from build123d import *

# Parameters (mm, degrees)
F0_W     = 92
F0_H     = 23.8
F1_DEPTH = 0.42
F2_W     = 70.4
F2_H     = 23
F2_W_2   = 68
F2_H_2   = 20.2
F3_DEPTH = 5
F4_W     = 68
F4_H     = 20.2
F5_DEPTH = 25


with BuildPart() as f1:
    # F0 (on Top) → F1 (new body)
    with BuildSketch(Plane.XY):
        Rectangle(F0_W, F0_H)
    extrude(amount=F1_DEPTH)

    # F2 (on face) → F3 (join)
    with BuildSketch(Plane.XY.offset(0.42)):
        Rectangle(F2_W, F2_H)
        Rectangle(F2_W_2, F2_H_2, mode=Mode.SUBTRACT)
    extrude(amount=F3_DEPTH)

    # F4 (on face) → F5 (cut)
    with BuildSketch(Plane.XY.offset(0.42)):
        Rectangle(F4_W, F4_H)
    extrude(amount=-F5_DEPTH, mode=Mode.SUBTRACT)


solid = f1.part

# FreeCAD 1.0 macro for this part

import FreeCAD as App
import Part
import Sketcher


def add_polygon(sketch, points):
    """Adds a closed chain of lines whose ends are joined by coincident constraints."""
    first, n = sketch.GeometryCount, len(points)
    for a, b in zip(points, points[1:] + points[:1]):
        sketch.addGeometry(Part.LineSegment(App.Vector(*a, 0), App.Vector(*b, 0)), False)
    for i in range(n):
        sketch.addConstraint(Sketcher.Constraint("Coincident", first + i, 2, first + (i + 1) % n, 1))

doc = App.newDocument("Part")
params = doc.addObject("Spreadsheet::Sheet", "Params")
for row, (alias, value) in enumerate([
    ("sketch1_width", "92 mm"),
    ("sketch1_height", "23.8 mm"),
    ("pad1_length", "0.42 mm"),
    ("sketch2_width", "68 mm"),
    ("sketch2_height", "23 mm"),
    ("sketch2_width2", "70.4 mm"),
    ("sketch2_height2", "20.2 mm"),
    ("pad2_length", "5 mm"),
    ("sketch3_width", "68 mm"),
    ("sketch3_height", "20.2 mm"),
    ("pocket1_length", "25 mm"),
], start=1):
    params.set(f"A{row}", alias)
    params.set(f"B{row}", "=" + value)
    params.setAlias(f"B{row}", alias)

body = doc.addObject("PartDesign::Body", "Body")

sketch1 = body.newObject("Sketcher::SketchObject", "Sketch")
sketch1.AttachmentSupport = (doc.getObject("XY_Plane"), [""])
sketch1.MapMode = "FlatFace"
add_polygon(sketch1, [(-46, 12), (-46, -12), (46, -12), (46, 12)])
sketch1.addConstraint([
    Sketcher.Constraint("Vertical", 0),
    Sketcher.Constraint("Horizontal", 1),
    Sketcher.Constraint("Vertical", 2),
    Sketcher.Constraint("Horizontal", 3),
    Sketcher.Constraint("Symmetric", 0, 2, 2, 2, -1, 1),
    Sketcher.Constraint("DistanceX", 1, 1, 1, 2, 92.0),
    Sketcher.Constraint("DistanceY", 0, 2, 0, 1, 23.8),
])
sketch1.setExpression("Constraints[9]", "Params.sketch1_width")
sketch1.setExpression("Constraints[10]", "Params.sketch1_height")
pad1 = body.newObject("PartDesign::Pad", "Pad")
pad1.Profile = sketch1
pad1.setExpression("Length", "Params.pad1_length")

sketch2 = body.newObject("Sketcher::SketchObject", "Sketch001")
sketch2.AttachmentSupport = (doc.getObject("XY_Plane"), [""])
sketch2.MapMode = "FlatFace"
sketch2.AttachmentOffset = App.Placement(App.Vector(0, 0, 0.42), App.Rotation())
add_polygon(sketch2, [(-35, 12), (-35, -12), (35, -12), (35, 12)])
add_polygon(sketch2, [(34, -10), (-34, -10), (-34, 10), (34, 10)])
sketch2.addConstraint([
    Sketcher.Constraint("Vertical", 0),
    Sketcher.Constraint("Horizontal", 1),
    Sketcher.Constraint("Vertical", 2),
    Sketcher.Constraint("Horizontal", 3),
    Sketcher.Constraint("Horizontal", 4),
    Sketcher.Constraint("Vertical", 5),
    Sketcher.Constraint("Horizontal", 6),
    Sketcher.Constraint("Vertical", 7),
    Sketcher.Constraint("Symmetric", 0, 2, 2, 2, -1, 1),
    Sketcher.Constraint("Symmetric", 4, 2, 6, 2, -1, 1),
    Sketcher.Constraint("DistanceX", 4, 2, 4, 1, 68.0),
    Sketcher.Constraint("DistanceY", 0, 2, 0, 1, 23.0),
    Sketcher.Constraint("DistanceX", 1, 1, 1, 2, 70.4),
    Sketcher.Constraint("DistanceY", 5, 1, 5, 2, 20.2),
])
sketch2.setExpression("Constraints[18]", "Params.sketch2_width")
sketch2.setExpression("Constraints[19]", "Params.sketch2_height")
sketch2.setExpression("Constraints[20]", "Params.sketch2_width2")
sketch2.setExpression("Constraints[21]", "Params.sketch2_height2")
pad2 = body.newObject("PartDesign::Pad", "Pad001")
pad2.Profile = sketch2
pad2.setExpression("Length", "Params.pad2_length")

sketch3 = body.newObject("Sketcher::SketchObject", "Sketch002")
sketch3.AttachmentSupport = (doc.getObject("XY_Plane"), [""])
sketch3.MapMode = "FlatFace"
sketch3.AttachmentOffset = App.Placement(App.Vector(0, 0, 0.42), App.Rotation())
add_polygon(sketch3, [(-34, 10), (-34, -10), (34, -10), (34, 10)])
sketch3.addConstraint([
    Sketcher.Constraint("Vertical", 0),
    Sketcher.Constraint("Horizontal", 1),
    Sketcher.Constraint("Vertical", 2),
    Sketcher.Constraint("Horizontal", 3),
    Sketcher.Constraint("Symmetric", 0, 2, 2, 2, -1, 1),
    Sketcher.Constraint("DistanceX", 1, 1, 1, 2, 68.0),
    Sketcher.Constraint("DistanceY", 0, 2, 0, 1, 20.2),
])
sketch3.setExpression("Constraints[9]", "Params.sketch3_width")
sketch3.setExpression("Constraints[10]", "Params.sketch3_height")
pocket1 = body.newObject("PartDesign::Pocket", "Pocket")
pocket1.Profile = sketch3
pocket1.setExpression("Length", "Params.pocket1_length")

doc.recompute()
